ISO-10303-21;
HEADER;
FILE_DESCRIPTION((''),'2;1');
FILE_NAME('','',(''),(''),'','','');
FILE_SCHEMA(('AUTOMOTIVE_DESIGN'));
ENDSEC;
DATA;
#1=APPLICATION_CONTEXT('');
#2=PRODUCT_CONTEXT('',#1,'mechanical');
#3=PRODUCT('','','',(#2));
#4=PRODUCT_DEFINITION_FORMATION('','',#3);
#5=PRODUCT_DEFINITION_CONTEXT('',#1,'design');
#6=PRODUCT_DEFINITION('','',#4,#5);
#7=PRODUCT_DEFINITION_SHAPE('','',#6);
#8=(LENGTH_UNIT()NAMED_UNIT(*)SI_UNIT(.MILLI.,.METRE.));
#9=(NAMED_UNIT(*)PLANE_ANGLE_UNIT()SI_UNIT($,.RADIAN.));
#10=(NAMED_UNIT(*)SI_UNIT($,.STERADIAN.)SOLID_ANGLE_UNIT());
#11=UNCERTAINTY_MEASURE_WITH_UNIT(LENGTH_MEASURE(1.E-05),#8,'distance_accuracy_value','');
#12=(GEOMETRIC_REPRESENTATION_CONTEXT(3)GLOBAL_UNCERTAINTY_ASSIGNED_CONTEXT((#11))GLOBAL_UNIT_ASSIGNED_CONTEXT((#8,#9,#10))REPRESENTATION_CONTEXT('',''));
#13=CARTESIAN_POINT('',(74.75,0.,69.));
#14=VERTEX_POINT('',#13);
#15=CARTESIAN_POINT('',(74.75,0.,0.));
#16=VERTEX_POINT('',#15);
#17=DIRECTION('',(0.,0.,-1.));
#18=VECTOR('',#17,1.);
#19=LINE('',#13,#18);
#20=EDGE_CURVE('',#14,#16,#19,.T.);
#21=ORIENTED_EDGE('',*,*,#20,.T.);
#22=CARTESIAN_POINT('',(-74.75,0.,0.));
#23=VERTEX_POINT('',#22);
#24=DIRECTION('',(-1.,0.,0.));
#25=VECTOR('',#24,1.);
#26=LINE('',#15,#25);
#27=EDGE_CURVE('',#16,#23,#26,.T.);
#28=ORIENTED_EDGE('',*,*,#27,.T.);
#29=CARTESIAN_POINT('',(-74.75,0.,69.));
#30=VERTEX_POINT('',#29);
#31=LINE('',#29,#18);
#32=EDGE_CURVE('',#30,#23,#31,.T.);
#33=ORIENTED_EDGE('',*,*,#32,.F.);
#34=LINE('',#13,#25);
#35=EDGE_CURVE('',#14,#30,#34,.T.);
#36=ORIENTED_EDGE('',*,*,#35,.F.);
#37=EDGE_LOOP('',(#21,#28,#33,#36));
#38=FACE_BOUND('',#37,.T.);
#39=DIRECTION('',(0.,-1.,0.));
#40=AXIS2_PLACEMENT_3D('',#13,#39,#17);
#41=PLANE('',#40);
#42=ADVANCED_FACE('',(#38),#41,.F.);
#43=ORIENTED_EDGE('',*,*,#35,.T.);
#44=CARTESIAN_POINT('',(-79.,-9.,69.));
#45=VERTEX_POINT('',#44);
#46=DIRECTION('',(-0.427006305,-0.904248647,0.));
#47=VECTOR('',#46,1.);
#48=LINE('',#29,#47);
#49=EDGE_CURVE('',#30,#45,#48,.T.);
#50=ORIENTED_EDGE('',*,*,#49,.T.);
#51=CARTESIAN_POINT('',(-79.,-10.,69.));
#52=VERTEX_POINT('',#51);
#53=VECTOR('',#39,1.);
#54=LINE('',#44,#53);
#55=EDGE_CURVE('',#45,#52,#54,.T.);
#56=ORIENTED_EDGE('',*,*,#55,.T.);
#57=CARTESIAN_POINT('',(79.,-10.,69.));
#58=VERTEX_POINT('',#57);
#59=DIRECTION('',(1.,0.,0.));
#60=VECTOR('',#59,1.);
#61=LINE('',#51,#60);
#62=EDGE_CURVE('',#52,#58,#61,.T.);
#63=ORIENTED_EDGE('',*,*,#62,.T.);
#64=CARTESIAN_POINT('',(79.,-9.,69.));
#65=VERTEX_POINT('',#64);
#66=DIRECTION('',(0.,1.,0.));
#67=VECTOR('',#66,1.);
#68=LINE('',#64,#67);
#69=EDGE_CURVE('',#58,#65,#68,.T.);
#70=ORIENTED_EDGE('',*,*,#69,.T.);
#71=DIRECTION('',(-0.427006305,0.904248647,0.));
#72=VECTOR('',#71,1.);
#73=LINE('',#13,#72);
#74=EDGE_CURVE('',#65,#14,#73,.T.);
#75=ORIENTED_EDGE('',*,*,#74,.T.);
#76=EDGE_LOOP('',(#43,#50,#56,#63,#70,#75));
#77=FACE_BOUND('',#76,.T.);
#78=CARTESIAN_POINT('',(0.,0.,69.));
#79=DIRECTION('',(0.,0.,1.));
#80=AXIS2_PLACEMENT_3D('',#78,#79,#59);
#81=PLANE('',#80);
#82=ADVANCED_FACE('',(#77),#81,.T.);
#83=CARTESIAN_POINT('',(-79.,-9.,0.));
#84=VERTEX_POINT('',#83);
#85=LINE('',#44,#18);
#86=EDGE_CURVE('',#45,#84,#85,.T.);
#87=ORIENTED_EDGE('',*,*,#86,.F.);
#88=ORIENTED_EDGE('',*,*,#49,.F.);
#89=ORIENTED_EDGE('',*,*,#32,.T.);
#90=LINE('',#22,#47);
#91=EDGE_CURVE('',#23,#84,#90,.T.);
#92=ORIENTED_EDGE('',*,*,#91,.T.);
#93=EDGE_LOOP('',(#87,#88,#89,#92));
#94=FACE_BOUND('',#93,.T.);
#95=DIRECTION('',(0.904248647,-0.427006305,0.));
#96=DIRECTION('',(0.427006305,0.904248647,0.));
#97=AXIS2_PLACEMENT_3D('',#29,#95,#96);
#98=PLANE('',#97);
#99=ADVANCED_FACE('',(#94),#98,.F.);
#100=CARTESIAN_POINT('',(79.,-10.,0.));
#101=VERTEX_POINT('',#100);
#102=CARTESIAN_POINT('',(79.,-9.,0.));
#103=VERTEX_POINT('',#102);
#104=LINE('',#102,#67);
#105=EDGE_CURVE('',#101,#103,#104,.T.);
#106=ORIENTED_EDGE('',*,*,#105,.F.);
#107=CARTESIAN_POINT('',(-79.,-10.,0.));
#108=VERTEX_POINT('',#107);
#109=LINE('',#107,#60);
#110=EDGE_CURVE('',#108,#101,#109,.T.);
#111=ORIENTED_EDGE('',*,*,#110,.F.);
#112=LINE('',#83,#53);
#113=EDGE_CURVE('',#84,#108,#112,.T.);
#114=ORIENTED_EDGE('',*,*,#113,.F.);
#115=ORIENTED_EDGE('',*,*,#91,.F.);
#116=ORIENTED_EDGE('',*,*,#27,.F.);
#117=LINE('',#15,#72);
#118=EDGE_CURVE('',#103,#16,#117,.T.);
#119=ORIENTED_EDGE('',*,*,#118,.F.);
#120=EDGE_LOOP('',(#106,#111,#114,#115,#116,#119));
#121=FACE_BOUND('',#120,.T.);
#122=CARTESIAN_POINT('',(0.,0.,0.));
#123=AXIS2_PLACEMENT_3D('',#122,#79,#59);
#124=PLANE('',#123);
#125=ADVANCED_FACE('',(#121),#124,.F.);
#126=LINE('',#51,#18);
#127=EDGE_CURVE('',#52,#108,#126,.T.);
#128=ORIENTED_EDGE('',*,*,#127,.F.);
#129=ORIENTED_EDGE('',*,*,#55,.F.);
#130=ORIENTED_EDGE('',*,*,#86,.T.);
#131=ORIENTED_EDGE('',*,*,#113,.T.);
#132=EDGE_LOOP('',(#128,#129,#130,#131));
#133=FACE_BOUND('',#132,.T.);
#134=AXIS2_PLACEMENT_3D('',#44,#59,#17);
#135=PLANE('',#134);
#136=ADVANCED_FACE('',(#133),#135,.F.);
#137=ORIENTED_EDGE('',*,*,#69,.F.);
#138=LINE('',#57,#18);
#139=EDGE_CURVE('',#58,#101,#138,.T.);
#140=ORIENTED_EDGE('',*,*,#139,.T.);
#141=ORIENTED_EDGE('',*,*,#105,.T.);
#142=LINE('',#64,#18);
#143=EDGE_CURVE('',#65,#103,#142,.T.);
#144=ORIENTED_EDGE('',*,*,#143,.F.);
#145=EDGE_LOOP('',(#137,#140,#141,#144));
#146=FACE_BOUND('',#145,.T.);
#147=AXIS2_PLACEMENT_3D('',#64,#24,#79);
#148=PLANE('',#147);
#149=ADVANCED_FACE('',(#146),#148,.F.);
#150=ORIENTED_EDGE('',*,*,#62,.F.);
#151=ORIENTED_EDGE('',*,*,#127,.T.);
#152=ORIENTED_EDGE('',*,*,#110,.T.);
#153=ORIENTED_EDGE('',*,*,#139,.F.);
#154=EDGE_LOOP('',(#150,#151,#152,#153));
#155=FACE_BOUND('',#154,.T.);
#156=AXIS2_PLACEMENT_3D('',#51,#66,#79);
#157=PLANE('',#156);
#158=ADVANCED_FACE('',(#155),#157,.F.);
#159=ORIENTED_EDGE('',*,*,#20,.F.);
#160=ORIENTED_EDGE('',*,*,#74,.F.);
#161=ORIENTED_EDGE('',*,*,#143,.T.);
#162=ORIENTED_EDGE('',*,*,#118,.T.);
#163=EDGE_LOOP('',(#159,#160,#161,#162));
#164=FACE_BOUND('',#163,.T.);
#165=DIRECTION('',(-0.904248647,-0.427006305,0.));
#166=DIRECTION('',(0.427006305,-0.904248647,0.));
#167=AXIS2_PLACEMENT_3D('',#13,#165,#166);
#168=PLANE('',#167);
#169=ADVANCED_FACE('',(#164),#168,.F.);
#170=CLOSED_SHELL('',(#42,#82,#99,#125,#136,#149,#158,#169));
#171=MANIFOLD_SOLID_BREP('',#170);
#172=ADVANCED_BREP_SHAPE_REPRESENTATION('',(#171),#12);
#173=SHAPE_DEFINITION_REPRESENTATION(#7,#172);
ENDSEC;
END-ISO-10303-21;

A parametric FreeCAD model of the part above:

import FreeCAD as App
import Part
import Sketcher
Q = App.Units.Quantity


def add_polygon(sketch, points):
    """Adds a closed chain of lines whose ends are joined by coincident constraints."""
    first, n = sketch.GeometryCount, len(points)
    for a, b in zip(points, points[1:] + points[:1]):
        sketch.addGeometry(Part.LineSegment(App.Vector(*a, 0), App.Vector(*b, 0)), False)
    for i in range(n):
        sketch.addConstraint(Sketcher.Constraint("Coincident", first + i, 2, first + (i + 1) % n, 1))

doc = App.newDocument("Part")
body = doc.addObject("PartDesign::Body", "Body")

# Sketch on XY plane
sketch1 = body.newObject("Sketcher::SketchObject", "Sketch")
sketch1.AttachmentSupport = (doc.getObject("XY_Plane"), [""])
sketch1.MapMode = "FlatFace"
add_polygon(sketch1, [(74.75, 0), (-74.75, 0), (-79, -9), (-79, -10), (79, -10), (79, -9)])  # lines 0-5
sketch1.addConstraint([
    Sketcher.Constraint("Horizontal", 0),
    Sketcher.Constraint("Vertical", 2),
    Sketcher.Constraint("Horizontal", 3),
    Sketcher.Constraint("Vertical", 4),
    Sketcher.Constraint("Symmetric", 0, 2, 5, 2, -1, 1),
    Sketcher.Constraint("Symmetric", 1, 2, 4, 2, -2),
    Sketcher.Constraint("DistanceX", 3, 1, 3, 2, Q("158 mm")),
    Sketcher.Constraint("DistanceY", 2, 2, 2, 1, Q("1 mm")),
    Sketcher.Constraint("DistanceX", 0, 2, 0, 1, Q("149.5 mm")),
    Sketcher.Constraint("DistanceY", 1, 2, -1, 1, Q("9 mm")),
])
pad1 = body.newObject("PartDesign::Pad", "Pad")
pad1.Profile = sketch1
pad1.Length = 69

doc.recompute()
